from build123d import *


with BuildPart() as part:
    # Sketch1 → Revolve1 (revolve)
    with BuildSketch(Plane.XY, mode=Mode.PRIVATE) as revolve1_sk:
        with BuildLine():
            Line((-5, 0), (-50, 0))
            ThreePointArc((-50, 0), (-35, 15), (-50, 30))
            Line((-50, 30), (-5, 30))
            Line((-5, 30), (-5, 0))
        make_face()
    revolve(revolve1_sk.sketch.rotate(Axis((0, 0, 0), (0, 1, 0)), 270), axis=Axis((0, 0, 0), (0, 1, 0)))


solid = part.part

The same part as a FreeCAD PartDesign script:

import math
import FreeCAD as App
import Part
import Sketcher

doc = App.newDocument("Part")
body = doc.addObject("PartDesign::Body", "Body")

sketch1 = body.newObject("Sketcher::SketchObject", "Sketch")
sketch1.AttachmentSupport = (doc.getObject("XY_Plane"), [""])
sketch1.MapMode = "FlatFace"
sketch1.addGeometry([
    Part.LineSegment(App.Vector(-50, 0, 0), App.Vector(-5, 0, 0)),
    Part.LineSegment(App.Vector(-5, 0, 0), App.Vector(-5, 30, 0)),
    Part.LineSegment(App.Vector(-5, 30, 0), App.Vector(-50, 30, 0)),
    Part.ArcOfCircle(Part.Circle(App.Vector(-50, 15, 0), App.Vector(0, 0, 1), 15), math.radians(-90), math.radians(90)),
], False)
sketch1.addConstraint([
    Sketcher.Constraint("Coincident", 0, 2, 1, 1),
    Sketcher.Constraint("Coincident", 1, 2, 2, 1),
    Sketcher.Constraint("Tangent", 2, 2, 3, 2),
    Sketcher.Constraint("Tangent", 3, 1, 0, 1),
    Sketcher.Constraint("Horizontal", 0),
    Sketcher.Constraint("Vertical", 1),
    Sketcher.Constraint("Horizontal", 2),
    Sketcher.Constraint("PointOnObject", 0, 2, -1),
    Sketcher.Constraint("Radius", 3, 15.0),
    Sketcher.Constraint("DistanceX", 0, 1, 0, 2, 45.0),
    Sketcher.Constraint("DistanceX", 3, 3, -1, 1, 50.0),
])
revolution = body.newObject("PartDesign::Revolution", "Revolution")
revolution.Profile = sketch1
revolution.ReferenceAxis = (sketch1, ["V_Axis"])
revolution.Angle = 360

doc.recompute()
